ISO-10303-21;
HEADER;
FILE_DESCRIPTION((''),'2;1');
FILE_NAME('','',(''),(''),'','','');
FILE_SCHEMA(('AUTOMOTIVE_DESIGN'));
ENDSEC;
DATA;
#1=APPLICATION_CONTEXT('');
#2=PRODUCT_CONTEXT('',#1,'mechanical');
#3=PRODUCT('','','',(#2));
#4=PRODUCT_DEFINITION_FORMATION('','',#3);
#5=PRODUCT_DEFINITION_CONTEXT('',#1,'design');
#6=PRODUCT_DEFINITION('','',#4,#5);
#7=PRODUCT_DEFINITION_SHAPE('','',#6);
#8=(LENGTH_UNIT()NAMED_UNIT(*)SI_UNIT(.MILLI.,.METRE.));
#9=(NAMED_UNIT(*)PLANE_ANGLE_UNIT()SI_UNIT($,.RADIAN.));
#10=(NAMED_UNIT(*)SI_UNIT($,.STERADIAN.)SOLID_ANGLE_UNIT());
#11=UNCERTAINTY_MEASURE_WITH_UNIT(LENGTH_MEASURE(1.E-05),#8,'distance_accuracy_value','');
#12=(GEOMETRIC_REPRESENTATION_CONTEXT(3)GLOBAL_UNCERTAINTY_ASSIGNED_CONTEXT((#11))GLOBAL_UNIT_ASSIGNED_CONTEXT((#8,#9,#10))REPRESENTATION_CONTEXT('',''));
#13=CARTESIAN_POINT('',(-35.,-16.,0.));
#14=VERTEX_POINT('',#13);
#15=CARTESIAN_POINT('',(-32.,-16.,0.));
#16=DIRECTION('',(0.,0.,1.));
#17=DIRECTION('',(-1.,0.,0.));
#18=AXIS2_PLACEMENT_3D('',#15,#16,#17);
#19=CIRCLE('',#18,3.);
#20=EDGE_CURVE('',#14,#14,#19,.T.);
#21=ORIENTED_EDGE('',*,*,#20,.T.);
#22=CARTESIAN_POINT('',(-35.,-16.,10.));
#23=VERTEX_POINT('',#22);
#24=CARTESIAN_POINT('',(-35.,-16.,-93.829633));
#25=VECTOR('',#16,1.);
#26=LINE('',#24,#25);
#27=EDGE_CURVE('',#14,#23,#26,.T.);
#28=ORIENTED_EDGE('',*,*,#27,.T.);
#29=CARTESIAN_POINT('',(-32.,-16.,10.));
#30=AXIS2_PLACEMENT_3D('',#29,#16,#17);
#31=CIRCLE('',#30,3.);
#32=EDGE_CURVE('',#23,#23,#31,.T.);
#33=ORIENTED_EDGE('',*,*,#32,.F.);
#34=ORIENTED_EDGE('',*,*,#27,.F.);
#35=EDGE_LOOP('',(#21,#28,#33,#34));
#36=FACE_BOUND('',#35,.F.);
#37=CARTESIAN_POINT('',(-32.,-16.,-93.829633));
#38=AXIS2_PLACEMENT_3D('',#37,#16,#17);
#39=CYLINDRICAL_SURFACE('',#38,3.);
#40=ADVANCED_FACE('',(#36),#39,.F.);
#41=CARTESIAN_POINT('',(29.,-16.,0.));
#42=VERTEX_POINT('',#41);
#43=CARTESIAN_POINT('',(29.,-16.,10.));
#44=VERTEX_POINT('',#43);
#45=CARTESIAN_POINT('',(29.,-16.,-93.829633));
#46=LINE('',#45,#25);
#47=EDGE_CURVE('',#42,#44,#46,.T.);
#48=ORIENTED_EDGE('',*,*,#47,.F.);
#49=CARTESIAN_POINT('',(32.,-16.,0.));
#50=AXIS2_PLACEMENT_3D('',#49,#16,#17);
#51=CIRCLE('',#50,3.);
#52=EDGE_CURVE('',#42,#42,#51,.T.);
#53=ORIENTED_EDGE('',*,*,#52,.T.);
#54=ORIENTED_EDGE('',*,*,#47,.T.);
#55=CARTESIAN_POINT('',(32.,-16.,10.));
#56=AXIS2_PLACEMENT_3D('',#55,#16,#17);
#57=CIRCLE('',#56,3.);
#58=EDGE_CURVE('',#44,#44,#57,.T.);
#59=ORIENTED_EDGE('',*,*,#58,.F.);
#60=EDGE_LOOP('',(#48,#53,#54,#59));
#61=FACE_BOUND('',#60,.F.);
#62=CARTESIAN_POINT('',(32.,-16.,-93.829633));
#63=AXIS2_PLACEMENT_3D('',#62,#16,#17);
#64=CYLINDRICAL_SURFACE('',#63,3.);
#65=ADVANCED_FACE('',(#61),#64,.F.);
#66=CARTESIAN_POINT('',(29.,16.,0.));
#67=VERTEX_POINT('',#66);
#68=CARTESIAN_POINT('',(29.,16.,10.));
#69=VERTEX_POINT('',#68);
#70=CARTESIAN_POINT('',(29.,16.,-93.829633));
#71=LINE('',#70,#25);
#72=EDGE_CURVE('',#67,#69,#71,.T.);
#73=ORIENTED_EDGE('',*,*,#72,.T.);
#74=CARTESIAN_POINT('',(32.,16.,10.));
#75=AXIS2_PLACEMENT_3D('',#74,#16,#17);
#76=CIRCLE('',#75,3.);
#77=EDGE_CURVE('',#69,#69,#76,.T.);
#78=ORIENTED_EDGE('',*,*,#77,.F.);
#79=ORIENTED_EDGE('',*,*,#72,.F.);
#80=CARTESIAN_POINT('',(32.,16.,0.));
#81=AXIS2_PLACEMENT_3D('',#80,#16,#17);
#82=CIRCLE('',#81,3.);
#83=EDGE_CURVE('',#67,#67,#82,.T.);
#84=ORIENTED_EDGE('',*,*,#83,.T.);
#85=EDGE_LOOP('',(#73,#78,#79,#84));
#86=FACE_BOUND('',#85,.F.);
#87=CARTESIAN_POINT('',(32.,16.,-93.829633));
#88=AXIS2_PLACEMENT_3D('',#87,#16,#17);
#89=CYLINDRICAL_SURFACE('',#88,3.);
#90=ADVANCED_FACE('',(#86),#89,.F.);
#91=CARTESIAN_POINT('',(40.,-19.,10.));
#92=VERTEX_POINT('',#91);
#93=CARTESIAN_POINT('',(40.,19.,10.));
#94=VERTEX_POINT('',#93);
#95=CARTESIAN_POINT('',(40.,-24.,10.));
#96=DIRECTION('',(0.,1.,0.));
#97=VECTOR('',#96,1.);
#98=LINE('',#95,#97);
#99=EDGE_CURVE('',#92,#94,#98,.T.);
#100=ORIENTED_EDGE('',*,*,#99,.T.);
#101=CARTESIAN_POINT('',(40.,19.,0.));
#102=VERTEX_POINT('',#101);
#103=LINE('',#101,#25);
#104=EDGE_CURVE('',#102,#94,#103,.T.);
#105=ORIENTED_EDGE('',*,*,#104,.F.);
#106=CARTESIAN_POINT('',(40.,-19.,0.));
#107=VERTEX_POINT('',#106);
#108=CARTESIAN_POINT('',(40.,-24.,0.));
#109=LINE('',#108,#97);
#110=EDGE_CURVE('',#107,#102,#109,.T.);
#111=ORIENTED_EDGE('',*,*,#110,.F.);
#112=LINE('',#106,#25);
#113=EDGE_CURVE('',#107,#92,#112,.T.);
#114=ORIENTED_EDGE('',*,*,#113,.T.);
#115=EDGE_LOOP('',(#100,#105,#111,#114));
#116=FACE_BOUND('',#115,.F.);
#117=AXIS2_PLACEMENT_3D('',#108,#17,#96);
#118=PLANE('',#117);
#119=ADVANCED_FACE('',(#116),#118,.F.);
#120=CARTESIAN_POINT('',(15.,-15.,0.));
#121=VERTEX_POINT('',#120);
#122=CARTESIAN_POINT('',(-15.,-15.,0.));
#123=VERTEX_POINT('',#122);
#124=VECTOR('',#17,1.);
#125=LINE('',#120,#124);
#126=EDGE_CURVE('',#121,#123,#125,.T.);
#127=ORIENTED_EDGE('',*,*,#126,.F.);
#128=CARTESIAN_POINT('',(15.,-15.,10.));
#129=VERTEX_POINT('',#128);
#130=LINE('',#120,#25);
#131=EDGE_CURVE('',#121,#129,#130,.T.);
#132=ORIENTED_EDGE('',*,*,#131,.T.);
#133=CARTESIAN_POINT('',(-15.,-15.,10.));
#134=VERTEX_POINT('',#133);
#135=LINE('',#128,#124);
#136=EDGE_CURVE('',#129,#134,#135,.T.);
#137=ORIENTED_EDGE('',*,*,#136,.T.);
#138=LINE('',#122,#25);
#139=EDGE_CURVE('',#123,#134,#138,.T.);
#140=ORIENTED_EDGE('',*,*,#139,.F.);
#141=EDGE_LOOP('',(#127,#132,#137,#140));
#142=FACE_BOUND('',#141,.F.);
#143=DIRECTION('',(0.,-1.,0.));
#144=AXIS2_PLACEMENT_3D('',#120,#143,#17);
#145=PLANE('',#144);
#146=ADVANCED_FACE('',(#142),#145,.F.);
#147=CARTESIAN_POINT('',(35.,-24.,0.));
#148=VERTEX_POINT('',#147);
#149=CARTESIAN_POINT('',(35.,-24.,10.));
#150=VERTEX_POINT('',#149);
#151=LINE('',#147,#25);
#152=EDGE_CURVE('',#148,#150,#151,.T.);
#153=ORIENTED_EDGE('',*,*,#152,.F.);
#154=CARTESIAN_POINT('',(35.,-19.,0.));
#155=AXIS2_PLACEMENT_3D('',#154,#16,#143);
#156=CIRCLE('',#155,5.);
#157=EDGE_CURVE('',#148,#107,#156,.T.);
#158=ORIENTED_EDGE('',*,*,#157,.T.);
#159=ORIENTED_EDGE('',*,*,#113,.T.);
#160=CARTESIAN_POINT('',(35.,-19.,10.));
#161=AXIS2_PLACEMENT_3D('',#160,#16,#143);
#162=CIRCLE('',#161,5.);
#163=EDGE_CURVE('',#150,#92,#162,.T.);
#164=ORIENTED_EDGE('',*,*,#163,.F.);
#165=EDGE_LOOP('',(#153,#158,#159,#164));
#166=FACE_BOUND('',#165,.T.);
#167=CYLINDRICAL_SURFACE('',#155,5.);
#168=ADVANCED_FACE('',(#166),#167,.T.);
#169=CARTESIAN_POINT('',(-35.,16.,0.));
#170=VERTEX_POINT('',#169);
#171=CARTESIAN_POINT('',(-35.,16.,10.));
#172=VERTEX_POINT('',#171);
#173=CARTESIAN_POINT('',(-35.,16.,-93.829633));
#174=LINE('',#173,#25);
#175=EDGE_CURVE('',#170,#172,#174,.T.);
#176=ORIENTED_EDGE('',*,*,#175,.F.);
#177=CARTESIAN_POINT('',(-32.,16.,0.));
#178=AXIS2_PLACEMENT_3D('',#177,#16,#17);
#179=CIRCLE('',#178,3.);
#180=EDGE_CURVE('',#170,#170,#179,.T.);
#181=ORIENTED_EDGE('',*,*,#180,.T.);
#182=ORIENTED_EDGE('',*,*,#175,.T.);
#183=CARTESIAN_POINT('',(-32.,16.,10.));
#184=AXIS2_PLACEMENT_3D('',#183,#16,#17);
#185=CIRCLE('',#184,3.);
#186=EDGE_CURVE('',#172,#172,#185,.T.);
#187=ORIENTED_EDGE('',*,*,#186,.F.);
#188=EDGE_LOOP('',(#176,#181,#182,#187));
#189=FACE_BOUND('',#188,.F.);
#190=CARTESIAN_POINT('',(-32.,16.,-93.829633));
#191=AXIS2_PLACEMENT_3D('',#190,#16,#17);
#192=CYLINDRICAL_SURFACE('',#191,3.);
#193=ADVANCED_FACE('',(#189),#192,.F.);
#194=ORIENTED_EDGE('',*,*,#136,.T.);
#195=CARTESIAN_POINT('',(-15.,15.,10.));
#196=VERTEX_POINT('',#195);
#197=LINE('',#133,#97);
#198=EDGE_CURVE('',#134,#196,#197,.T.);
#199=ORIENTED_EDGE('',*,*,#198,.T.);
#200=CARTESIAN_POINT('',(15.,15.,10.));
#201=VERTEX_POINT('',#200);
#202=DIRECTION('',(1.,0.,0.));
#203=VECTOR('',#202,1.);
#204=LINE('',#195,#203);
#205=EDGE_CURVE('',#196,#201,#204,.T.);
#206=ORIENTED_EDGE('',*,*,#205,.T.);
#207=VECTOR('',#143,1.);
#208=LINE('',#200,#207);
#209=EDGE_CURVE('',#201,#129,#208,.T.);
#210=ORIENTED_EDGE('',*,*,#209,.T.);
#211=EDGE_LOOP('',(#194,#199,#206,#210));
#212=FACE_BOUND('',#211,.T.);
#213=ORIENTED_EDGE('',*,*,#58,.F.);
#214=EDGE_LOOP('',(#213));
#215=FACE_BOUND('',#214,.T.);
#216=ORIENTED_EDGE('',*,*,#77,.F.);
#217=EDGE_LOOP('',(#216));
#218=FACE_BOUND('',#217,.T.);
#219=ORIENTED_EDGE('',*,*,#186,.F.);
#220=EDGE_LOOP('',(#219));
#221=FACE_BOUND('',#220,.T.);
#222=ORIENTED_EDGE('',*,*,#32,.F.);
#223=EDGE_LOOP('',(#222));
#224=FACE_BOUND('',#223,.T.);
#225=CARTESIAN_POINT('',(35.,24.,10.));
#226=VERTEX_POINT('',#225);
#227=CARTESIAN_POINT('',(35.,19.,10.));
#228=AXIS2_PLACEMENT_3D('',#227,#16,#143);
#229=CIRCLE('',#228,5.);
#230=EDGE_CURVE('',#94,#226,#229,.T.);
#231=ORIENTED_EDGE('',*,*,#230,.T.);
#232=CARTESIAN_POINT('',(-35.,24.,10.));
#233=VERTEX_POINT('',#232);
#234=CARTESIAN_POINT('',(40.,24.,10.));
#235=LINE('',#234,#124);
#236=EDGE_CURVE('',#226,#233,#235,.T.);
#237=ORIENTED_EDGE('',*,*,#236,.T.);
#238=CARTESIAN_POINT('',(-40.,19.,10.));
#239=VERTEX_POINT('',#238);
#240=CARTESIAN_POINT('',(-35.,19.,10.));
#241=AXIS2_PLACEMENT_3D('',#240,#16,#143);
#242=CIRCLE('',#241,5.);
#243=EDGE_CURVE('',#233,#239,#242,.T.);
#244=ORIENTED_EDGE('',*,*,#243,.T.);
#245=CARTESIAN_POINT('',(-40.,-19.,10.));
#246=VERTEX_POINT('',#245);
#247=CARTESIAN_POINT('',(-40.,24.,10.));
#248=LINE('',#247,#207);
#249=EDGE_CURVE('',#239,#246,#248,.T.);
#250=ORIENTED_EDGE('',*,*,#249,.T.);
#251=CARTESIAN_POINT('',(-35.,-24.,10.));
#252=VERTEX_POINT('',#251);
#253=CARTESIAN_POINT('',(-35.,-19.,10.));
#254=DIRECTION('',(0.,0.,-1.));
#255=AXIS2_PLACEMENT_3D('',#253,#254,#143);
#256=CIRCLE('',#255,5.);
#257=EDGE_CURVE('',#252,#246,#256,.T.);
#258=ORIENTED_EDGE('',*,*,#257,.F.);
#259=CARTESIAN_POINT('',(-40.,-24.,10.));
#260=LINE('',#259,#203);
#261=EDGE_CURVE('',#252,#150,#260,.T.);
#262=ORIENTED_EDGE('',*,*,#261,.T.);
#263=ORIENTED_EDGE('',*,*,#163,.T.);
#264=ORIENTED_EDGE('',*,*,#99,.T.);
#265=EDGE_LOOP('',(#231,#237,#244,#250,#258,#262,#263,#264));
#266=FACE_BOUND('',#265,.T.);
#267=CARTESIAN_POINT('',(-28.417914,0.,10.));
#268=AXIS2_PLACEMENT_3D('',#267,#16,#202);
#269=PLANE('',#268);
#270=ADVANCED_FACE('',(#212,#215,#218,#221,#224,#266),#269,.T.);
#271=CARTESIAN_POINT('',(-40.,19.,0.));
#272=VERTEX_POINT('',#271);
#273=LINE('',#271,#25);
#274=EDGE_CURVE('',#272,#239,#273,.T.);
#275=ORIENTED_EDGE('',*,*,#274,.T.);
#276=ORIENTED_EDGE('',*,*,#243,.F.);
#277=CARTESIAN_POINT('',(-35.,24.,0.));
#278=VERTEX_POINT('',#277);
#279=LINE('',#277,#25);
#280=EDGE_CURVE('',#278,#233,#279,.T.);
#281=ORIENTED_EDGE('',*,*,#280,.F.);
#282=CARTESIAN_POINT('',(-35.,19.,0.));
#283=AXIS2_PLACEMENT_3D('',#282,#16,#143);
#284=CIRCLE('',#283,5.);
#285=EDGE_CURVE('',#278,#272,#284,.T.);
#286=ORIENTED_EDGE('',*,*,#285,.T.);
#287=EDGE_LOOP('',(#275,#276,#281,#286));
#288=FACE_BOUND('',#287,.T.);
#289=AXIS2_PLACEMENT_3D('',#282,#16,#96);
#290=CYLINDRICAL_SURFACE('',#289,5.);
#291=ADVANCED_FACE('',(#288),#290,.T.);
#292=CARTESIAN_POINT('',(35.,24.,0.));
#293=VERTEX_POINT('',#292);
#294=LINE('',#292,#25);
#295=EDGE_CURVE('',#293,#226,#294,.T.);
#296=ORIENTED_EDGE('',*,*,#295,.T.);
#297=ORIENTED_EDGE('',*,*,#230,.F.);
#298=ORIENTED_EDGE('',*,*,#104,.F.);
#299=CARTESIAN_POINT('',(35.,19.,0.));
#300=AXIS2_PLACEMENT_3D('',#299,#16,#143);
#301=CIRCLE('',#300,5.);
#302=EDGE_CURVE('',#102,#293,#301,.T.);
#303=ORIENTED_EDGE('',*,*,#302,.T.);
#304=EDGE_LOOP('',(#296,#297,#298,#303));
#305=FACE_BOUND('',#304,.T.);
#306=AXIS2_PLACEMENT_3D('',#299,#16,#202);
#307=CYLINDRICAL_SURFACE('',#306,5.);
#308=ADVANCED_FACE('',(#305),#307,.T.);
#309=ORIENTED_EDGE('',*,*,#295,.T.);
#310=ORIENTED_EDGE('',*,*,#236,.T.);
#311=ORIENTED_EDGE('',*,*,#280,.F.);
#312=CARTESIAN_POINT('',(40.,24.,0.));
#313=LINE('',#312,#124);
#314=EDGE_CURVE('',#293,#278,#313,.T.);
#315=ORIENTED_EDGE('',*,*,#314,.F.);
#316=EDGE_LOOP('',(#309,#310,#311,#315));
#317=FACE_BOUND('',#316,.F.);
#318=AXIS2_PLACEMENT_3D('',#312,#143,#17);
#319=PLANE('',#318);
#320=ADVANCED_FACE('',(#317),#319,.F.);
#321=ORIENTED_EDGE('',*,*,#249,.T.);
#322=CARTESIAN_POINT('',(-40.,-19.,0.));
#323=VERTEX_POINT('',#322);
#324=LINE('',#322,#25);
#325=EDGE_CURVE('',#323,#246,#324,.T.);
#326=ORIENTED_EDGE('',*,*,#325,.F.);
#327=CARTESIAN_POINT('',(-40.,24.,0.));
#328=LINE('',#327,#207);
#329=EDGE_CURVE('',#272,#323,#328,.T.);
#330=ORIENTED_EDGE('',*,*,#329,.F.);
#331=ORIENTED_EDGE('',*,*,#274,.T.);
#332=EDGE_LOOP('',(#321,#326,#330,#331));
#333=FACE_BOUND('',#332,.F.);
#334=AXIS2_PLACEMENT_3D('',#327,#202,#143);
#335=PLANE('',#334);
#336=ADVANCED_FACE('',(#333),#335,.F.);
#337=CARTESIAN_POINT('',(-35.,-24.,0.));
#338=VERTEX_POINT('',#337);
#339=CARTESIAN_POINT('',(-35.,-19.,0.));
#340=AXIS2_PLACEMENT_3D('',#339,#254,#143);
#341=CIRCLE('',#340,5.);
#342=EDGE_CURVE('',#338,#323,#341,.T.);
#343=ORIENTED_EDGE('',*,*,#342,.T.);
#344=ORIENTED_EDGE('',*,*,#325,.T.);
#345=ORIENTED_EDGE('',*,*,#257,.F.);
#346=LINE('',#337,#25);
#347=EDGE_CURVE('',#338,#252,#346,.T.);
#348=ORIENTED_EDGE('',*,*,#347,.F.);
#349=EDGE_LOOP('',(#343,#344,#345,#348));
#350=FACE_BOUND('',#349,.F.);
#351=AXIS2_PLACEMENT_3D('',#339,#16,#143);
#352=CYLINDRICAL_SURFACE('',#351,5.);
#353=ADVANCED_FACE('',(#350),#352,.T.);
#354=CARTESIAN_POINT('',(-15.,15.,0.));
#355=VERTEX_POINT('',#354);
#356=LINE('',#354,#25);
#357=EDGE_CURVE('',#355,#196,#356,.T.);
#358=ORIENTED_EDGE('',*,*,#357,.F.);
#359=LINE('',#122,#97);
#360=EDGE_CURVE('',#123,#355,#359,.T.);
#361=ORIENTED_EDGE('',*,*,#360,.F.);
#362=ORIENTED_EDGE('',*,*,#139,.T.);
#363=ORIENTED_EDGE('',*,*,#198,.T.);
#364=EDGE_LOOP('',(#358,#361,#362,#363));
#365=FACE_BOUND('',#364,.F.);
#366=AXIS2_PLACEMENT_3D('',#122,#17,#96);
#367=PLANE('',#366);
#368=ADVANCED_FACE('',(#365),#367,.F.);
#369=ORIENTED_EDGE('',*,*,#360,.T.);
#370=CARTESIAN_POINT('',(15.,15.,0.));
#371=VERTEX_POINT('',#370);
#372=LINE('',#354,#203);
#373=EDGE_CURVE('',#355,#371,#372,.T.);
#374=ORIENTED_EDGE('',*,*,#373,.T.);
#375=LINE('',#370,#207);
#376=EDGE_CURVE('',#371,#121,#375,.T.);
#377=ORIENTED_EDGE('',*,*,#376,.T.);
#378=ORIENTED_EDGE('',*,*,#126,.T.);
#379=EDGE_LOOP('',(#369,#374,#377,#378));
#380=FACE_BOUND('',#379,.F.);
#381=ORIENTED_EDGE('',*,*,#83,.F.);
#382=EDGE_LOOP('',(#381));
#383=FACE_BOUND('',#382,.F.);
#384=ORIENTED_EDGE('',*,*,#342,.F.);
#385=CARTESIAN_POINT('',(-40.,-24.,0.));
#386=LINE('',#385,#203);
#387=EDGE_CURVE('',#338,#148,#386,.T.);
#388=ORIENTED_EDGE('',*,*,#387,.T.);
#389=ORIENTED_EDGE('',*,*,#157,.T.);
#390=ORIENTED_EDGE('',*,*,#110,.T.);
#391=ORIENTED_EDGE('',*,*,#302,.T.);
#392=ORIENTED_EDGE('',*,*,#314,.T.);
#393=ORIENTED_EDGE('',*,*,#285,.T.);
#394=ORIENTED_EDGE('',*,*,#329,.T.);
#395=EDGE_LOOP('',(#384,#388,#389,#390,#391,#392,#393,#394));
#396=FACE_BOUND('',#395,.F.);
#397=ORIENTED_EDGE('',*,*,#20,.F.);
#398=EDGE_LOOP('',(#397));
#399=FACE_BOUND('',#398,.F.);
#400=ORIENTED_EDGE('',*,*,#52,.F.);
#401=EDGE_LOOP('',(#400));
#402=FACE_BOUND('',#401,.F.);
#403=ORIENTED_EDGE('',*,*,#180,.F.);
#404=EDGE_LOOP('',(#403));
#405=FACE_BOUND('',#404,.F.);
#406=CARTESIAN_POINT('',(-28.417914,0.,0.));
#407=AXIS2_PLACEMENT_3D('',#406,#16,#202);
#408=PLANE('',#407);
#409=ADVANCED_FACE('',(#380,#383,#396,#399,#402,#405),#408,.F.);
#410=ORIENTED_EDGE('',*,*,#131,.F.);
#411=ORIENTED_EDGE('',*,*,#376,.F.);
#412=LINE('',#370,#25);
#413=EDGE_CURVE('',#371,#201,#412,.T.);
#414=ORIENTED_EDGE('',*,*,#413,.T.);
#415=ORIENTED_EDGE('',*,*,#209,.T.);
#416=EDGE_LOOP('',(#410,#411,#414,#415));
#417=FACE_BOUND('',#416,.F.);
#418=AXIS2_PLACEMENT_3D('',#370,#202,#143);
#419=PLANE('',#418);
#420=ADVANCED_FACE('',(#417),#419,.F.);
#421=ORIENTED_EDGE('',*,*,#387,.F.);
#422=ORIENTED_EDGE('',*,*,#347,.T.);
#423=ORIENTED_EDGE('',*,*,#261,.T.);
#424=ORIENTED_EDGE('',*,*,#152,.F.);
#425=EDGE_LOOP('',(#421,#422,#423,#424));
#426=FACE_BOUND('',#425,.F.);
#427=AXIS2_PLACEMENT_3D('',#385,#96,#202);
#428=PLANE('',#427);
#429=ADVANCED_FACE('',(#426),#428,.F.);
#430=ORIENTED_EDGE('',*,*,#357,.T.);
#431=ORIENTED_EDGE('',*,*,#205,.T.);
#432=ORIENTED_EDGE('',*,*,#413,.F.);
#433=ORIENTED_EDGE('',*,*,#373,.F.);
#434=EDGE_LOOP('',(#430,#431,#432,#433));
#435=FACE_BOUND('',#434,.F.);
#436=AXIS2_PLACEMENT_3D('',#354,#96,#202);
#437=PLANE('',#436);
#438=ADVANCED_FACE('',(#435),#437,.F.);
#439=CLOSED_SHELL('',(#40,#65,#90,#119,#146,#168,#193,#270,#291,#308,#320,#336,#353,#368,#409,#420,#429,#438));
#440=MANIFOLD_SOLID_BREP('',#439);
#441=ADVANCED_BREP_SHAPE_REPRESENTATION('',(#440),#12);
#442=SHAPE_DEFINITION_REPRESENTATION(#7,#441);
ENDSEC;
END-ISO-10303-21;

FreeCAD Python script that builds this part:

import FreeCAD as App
import Part
import Sketcher

V = App.Vector


def edges_at(feature, points):
    """Names of the edges that pass closest to the given points."""
    edges = feature.Shape.Edges
    near = lambda p: min(range(len(edges)), key=lambda i: edges[i].distToShape(Part.Vertex(*p))[0])
    return sorted({f"Edge{near(p) + 1}" for p in points})


def add_polygon(sketch, points):
    """Adds a closed chain of lines whose ends are joined by coincident constraints."""
    first, n = sketch.GeometryCount, len(points)
    for a, b in zip(points, points[1:] + points[:1]):
        sketch.addGeometry(Part.LineSegment(App.Vector(*a, 0), App.Vector(*b, 0)), False)
    for i in range(n):
        sketch.addConstraint(Sketcher.Constraint("Coincident", first + i, 2, first + (i + 1) % n, 1))

doc = App.newDocument("Part")
body = doc.addObject("PartDesign::Body", "Body")

# Sketch on XY plane
sketch1 = body.newObject("Sketcher::SketchObject", "Sketch")
sketch1.AttachmentSupport = (doc.getObject("XY_Plane"), [""])
sketch1.MapMode = "FlatFace"
add_polygon(sketch1, [(-40, -24), (40, -24), (40, 24), (-40, 24)])  # lines 0-3
add_polygon(sketch1, [(15, -15), (-15, -15), (-15, 15), (15, 15)])  # lines 4-7
sketch1.addConstraint(Sketcher.Constraint("Horizontal", 0))
sketch1.addConstraint(Sketcher.Constraint("Vertical", 1))
sketch1.addConstraint(Sketcher.Constraint("Horizontal", 2))
sketch1.addConstraint(Sketcher.Constraint("Vertical", 3))
sketch1.addConstraint(Sketcher.Constraint("Horizontal", 4))
sketch1.addConstraint(Sketcher.Constraint("Vertical", 5))
sketch1.addConstraint(Sketcher.Constraint("Horizontal", 6))
sketch1.addConstraint(Sketcher.Constraint("Vertical", 7))
sketch1.addConstraint(Sketcher.Constraint("Symmetric", 0, 2, 2, 2, -1, 1))
sketch1.addConstraint(Sketcher.Constraint("Symmetric", 4, 2, 6, 2, -1, 1))
sketch1.addConstraint(Sketcher.Constraint("Equal", 6, 5))
sketch1.addConstraint(Sketcher.Constraint("DistanceX", 0, 1, 0, 2, 80.0))
sketch1.addConstraint(Sketcher.Constraint("DistanceX", 4, 2, 4, 1, 30.0))
sketch1.addConstraint(Sketcher.Constraint("DistanceY", 1, 1, 1, 2, 48.0))
pad1 = body.newObject("PartDesign::Pad", "Pad")
pad1.Profile = sketch1
pad1.Length = 10
doc.recompute()

fillet = body.newObject("PartDesign::Fillet", "Fillet")
fillet.Base = (pad1, edges_at(pad1, [
    (40, 24, 5),
    (40, -24, 5),
    (-40, 24, 5),
    (-40, -24, 5),
]))
fillet.Radius = 5

# Sketch on XY plane
sketch2 = body.newObject("Sketcher::SketchObject", "Sketch001")
sketch2.AttachmentSupport = (doc.getObject("XY_Plane"), [""])
sketch2.MapMode = "FlatFace"
sketch2.addGeometry(Part.Circle(V(32, 16, 0), V(0, 0, 1), 3), False)
sketch2.addGeometry(Part.Circle(V(32, -16, 0), V(0, 0, 1), 3), False)
sketch2.addGeometry(Part.Circle(V(-32, 16, 0), V(0, 0, 1), 3), False)
sketch2.addGeometry(Part.Circle(V(-32, -16, 0), V(0, 0, 1), 3), False)
sketch2.addConstraint(Sketcher.Constraint("Equal", 0, 1))
sketch2.addConstraint(Sketcher.Constraint("Equal", 1, 2))
sketch2.addConstraint(Sketcher.Constraint("Equal", 2, 3))
sketch2.addConstraint(Sketcher.Constraint("Symmetric", 1, 3, 2, 3, -1, 1))
sketch2.addConstraint(Sketcher.Constraint("Symmetric", 0, 3, 3, 3, -1, 1))
sketch2.addConstraint(Sketcher.Constraint("Symmetric", 0, 3, 2, 3, -2))
sketch2.addConstraint(Sketcher.Constraint("Diameter", 0, 6.0))
sketch2.addConstraint(Sketcher.Constraint("DistanceX", -1, 1, 0, 3, 32.0))
sketch2.addConstraint(Sketcher.Constraint("DistanceY", -1, 1, 0, 3, 16.0))
doc.recompute()
hole = body.newObject("PartDesign::Hole", "Hole")
hole.Profile = sketch2
hole.ThreadType = "None"
hole.Diameter = 6
hole.DepthType = "ThroughAll"
hole.Reversed = True

doc.recompute()
